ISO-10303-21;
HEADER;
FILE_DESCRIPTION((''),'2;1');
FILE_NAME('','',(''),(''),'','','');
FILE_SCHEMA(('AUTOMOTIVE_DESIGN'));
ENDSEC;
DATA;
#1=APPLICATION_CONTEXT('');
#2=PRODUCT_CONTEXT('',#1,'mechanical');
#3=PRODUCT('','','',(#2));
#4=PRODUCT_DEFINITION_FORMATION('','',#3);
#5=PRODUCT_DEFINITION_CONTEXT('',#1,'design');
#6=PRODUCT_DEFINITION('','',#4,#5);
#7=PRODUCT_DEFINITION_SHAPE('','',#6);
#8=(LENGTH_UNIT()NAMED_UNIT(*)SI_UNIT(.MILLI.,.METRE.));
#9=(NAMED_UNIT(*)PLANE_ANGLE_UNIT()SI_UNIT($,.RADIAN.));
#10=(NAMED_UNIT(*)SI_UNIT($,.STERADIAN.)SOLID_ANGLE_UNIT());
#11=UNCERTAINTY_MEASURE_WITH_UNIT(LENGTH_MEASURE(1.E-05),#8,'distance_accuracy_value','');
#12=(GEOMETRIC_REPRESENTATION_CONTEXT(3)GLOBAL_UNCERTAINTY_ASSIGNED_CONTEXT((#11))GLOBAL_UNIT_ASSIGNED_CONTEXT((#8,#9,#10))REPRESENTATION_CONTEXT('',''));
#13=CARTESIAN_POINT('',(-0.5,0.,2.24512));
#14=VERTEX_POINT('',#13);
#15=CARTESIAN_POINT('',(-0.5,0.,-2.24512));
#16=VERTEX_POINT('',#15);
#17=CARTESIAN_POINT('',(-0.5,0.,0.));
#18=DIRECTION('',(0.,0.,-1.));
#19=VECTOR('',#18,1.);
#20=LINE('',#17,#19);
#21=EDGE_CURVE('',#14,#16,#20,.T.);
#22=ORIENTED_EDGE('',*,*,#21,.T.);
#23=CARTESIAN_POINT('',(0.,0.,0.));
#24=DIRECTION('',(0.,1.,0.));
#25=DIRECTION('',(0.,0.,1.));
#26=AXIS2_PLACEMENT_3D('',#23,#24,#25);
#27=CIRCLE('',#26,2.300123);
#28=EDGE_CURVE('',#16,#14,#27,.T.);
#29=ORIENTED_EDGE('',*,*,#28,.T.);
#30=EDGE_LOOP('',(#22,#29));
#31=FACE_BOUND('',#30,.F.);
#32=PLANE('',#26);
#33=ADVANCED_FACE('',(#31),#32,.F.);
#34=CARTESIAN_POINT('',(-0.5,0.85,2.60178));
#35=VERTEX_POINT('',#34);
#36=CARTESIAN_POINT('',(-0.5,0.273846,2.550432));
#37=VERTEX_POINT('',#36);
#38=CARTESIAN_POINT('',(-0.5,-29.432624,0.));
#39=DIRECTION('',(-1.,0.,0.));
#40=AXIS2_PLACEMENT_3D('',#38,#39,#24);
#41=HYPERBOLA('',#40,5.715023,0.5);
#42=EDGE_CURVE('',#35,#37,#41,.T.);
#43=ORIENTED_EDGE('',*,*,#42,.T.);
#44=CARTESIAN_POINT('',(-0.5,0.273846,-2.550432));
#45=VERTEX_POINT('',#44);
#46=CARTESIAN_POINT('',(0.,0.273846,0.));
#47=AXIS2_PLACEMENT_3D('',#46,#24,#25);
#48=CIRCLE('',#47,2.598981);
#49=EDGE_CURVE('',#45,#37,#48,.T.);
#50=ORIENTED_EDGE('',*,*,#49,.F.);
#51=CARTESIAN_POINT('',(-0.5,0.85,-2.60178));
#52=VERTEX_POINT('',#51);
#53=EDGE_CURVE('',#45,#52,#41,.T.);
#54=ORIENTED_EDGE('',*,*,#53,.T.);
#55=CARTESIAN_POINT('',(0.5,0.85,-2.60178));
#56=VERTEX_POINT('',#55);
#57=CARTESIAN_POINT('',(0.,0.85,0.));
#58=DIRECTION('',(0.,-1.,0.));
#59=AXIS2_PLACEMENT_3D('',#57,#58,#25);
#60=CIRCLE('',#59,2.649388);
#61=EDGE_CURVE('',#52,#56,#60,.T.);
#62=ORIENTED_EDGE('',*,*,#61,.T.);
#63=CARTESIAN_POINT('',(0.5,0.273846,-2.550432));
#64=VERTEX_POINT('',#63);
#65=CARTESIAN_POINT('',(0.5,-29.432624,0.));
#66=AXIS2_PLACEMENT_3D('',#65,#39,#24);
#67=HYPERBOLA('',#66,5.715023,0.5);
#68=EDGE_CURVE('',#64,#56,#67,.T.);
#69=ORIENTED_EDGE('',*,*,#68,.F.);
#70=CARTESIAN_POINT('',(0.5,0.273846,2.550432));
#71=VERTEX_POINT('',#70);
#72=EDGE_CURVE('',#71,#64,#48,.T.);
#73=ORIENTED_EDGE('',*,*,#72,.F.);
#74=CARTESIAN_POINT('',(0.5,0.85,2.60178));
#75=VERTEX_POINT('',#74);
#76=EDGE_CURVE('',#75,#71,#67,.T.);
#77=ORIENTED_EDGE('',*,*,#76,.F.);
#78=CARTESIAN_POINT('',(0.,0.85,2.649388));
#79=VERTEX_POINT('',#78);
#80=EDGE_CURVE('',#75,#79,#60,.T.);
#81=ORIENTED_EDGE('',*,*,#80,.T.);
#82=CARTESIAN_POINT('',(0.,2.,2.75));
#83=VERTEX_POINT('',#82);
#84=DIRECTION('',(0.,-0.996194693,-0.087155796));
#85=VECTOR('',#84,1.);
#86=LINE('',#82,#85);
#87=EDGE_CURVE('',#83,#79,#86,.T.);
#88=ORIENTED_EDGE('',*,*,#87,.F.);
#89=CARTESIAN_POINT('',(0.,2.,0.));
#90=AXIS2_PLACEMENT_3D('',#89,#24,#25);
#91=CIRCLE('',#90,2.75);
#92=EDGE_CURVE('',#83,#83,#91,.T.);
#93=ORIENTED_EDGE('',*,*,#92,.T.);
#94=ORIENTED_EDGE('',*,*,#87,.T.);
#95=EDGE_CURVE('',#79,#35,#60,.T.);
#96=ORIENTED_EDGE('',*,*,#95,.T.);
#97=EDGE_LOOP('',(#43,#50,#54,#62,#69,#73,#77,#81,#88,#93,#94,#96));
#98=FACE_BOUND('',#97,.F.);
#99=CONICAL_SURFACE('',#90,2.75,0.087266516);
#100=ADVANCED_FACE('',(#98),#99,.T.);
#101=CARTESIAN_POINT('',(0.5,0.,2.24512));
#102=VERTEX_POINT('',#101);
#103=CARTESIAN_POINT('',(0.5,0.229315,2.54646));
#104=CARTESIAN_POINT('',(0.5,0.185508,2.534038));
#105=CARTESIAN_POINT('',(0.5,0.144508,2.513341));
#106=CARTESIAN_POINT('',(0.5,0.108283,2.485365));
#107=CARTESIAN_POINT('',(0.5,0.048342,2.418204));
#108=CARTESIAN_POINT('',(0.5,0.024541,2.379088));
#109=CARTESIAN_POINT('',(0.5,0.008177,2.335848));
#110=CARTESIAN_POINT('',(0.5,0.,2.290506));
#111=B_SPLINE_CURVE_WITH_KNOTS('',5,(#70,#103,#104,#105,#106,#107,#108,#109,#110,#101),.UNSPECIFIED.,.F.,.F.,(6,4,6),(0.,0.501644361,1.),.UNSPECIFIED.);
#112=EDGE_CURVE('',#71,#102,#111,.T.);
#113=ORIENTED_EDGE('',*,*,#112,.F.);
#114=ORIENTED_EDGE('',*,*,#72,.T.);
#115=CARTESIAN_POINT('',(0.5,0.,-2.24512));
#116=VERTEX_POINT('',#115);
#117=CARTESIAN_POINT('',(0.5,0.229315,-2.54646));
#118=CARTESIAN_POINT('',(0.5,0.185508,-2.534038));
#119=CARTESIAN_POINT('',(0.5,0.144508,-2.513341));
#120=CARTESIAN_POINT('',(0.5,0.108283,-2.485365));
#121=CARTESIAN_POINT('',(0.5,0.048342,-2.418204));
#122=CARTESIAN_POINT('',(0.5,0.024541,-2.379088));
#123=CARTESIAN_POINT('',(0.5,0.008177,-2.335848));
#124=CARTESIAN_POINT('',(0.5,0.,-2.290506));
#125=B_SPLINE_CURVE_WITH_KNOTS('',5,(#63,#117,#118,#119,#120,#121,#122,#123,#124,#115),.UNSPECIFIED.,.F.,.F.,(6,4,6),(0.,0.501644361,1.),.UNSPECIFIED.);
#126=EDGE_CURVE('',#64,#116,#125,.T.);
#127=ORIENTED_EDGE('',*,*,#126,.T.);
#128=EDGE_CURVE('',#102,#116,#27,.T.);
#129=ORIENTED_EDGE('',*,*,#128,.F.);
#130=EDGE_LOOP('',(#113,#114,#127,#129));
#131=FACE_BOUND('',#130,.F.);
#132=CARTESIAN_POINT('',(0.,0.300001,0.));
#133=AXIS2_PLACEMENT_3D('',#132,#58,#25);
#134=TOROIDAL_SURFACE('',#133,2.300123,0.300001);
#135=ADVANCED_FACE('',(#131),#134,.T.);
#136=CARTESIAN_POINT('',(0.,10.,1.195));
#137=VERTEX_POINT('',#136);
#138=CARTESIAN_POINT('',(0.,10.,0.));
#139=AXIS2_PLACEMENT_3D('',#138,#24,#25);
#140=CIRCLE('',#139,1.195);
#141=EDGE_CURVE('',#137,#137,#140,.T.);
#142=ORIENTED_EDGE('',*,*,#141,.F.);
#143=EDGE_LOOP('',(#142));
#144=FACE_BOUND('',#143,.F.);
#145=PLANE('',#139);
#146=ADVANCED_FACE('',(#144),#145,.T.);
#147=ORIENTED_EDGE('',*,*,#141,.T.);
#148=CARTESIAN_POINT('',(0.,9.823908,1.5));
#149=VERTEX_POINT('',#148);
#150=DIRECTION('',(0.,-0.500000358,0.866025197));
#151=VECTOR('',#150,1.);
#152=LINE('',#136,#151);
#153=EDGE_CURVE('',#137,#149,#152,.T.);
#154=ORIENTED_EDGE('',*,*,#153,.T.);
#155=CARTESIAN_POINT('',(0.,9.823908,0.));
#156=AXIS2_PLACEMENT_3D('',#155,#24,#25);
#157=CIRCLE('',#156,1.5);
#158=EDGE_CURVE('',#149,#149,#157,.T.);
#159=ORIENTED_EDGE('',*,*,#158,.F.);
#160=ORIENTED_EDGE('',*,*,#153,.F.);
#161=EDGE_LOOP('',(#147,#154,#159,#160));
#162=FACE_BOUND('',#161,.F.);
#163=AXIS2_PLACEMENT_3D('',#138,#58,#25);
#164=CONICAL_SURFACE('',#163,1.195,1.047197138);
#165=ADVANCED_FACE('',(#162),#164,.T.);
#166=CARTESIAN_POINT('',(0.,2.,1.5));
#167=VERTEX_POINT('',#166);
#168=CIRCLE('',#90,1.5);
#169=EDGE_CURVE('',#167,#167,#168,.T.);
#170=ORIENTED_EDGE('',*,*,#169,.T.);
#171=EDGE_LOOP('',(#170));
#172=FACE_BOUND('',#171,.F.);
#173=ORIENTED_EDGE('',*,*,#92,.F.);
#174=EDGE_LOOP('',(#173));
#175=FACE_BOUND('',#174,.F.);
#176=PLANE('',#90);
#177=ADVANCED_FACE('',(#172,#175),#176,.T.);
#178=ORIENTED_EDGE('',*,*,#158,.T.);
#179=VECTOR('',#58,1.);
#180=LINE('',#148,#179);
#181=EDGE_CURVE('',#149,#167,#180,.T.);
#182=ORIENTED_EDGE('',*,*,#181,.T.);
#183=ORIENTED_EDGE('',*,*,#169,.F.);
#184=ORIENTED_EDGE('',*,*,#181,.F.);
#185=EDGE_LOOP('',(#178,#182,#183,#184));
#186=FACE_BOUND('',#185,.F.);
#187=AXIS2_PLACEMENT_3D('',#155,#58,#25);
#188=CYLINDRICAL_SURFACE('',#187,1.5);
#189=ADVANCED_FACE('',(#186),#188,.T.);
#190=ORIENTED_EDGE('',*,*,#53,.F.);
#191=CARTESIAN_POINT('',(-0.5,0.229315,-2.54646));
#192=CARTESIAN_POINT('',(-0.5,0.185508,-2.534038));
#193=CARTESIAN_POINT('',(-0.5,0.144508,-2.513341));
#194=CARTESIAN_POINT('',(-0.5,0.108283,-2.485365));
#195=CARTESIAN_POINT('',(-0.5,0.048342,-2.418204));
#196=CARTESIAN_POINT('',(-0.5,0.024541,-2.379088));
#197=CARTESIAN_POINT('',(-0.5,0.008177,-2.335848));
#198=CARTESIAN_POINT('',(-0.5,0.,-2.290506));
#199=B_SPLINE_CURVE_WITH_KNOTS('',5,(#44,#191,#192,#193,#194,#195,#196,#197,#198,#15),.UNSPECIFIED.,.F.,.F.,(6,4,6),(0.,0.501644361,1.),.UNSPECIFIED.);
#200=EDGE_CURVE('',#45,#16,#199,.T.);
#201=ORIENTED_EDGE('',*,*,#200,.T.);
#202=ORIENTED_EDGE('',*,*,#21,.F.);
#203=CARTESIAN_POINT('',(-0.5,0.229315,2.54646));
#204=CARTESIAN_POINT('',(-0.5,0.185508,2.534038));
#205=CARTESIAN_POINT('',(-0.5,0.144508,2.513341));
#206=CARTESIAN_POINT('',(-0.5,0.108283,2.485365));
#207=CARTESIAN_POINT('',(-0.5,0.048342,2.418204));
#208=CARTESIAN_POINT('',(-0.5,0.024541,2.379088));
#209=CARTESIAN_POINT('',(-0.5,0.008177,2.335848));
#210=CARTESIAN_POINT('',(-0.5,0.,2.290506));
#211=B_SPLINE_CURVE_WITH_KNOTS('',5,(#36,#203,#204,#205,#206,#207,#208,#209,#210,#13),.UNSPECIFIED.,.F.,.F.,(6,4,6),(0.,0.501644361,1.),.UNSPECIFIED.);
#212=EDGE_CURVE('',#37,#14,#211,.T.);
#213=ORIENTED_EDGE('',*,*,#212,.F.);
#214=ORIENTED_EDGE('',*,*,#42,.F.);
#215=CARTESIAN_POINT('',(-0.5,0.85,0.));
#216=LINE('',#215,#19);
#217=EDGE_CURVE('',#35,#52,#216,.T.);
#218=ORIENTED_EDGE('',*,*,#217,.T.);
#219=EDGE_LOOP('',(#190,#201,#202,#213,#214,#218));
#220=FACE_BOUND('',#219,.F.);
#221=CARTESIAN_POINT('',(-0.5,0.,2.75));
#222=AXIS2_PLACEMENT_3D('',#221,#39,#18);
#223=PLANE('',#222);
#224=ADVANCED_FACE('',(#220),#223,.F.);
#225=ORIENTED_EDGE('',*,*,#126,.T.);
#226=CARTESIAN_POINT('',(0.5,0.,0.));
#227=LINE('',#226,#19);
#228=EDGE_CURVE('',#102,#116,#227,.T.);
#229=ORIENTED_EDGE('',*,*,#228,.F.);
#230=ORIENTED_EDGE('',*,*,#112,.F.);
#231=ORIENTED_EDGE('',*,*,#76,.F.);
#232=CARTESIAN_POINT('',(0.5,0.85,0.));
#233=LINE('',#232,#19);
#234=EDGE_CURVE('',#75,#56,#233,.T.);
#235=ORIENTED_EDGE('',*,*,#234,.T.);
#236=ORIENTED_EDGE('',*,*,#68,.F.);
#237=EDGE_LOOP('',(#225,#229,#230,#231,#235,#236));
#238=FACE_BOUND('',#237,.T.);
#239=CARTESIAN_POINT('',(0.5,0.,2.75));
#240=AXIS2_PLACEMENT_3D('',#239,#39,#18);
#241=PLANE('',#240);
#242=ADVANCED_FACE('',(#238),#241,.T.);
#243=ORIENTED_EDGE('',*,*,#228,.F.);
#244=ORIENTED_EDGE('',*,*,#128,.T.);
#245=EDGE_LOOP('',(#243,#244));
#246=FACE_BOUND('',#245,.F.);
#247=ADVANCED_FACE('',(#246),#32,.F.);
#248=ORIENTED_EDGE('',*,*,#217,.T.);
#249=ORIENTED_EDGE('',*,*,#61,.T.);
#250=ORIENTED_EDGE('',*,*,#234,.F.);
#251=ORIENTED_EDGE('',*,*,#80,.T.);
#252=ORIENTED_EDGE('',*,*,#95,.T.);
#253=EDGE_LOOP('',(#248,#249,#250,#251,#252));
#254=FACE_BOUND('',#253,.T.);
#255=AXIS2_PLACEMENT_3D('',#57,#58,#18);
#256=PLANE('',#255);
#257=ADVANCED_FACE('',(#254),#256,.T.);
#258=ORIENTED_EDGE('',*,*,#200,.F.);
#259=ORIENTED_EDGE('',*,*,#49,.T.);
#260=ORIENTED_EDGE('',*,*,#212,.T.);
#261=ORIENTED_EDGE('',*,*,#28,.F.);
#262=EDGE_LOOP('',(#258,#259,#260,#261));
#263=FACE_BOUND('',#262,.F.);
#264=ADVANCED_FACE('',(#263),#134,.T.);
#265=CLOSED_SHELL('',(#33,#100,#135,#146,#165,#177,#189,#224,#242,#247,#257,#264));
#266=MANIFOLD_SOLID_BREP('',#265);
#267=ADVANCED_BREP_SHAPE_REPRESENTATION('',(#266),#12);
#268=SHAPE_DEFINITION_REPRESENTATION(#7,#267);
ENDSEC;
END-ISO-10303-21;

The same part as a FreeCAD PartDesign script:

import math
import FreeCAD as App
import Part
import Sketcher
from FreeCAD import Vector
Q = App.Units.Quantity


def add_polygon(sketch, points):
    """Adds a closed chain of lines whose ends are joined by coincident constraints."""
    first, n = sketch.GeometryCount, len(points)
    for a, b in zip(points, points[1:] + points[:1]):
        sketch.addGeometry(Part.LineSegment(App.Vector(*a, 0), App.Vector(*b, 0)), False)
    for i in range(n):
        sketch.addConstraint(Sketcher.Constraint("Coincident", first + i, 2, first + (i + 1) % n, 1))

doc = App.newDocument("Part")
params = doc.addObject("Spreadsheet::Sheet", "Params")
for row, (alias, value) in enumerate([
    ("sketch1_radius", "0.300001 mm"),
    ("sketch1_width", "10 mm"),
    ("sketch1_height", "1.25 mm"),
    ("revolution_angle", "360 deg"),
    ("sketch2_width", "1 mm"),
    ("sketch2_height", "5.5 mm"),
    ("pocket1_length", "0.85 mm"),
], start=1):
    params.set(f"A{row}", alias)
    params.set(f"B{row}", "=" + value)
    params.setAlias(f"B{row}", alias)

body = doc.addObject("PartDesign::Body", "Body")

sketch1 = doc.addObject("Sketcher::SketchObject", "Sketch")
body.addObject(sketch1)
sketch1.AttachmentSupport = (doc.YZ_Plane, [""])
sketch1.MapMode = "FlatFace"
sketch1.addGeometry([
    Part.LineSegment(Vector(0, 2.3, 0), Vector(0, 0, 0)),
    Part.LineSegment(Vector(0, 0, 0), Vector(10, 0, 0)),
    Part.LineSegment(Vector(10, 0, 0), Vector(10, 1.2, 0)),
    Part.LineSegment(Vector(10, 1.2, 0), Vector(9.82, 1.5, 0)),
    Part.LineSegment(Vector(9.82, 1.5, 0), Vector(2, 1.5, 0)),
    Part.LineSegment(Vector(2, 1.5, 0), Vector(2, 2.75, 0)),
    Part.LineSegment(Vector(2, 2.75, 0), Vector(0.27, 2.6, 0)),
    Part.ArcOfCircle(Part.Circle(Vector(0.3, 2.3, 0), Vector(0, 0, 1), 0.3), math.radians(95), math.radians(180)),
], False)
sketch1.addConstraint([
    Sketcher.Constraint("Coincident", 0, 2, 1, 1),
    Sketcher.Constraint("Coincident", 1, 2, 2, 1),
    Sketcher.Constraint("Coincident", 2, 2, 3, 1),
    Sketcher.Constraint("Coincident", 3, 2, 4, 1),
    Sketcher.Constraint("Coincident", 4, 2, 5, 1),
    Sketcher.Constraint("Coincident", 5, 2, 6, 1),
    Sketcher.Constraint("Coincident", 6, 2, 7, 1),
    Sketcher.Constraint("Tangent", 7, 2, 0, 1),
    Sketcher.Constraint("Vertical", 0),
    Sketcher.Constraint("Horizontal", 1),
    Sketcher.Constraint("Vertical", 2),
    Sketcher.Constraint("Horizontal", 4),
    Sketcher.Constraint("Vertical", 5),
    Sketcher.Constraint("Coincident", 0, 2, -1, 1),
    Sketcher.Constraint("Radius", 7, 0.300001),
    Sketcher.Constraint("DistanceX", 1, 1, 1, 2, 10.0),
    Sketcher.Constraint("Angle", 6, Q("-174.999997 deg")),
    Sketcher.Constraint("DistanceX", -1, 1, 4, 2, 2.0),
    Sketcher.Constraint("DistanceY", 5, 1, 5, 2, 1.25),
    Sketcher.Constraint("DistanceY", -1, 1, 3, 2, 1.5),
    Sketcher.Constraint("DistanceY", 2, 1, 2, 2, 1.195),
    Sketcher.Constraint("DistanceX", 4, 2, 4, 1, 7.823908),
    Sketcher.Constraint("DistanceY", -1, 1, 6, 2, 2.598981),
])
sketch1.setExpression("Constraints[14]", "Params.sketch1_radius")
sketch1.setExpression("Constraints[15]", "Params.sketch1_width")
sketch1.setExpression("Constraints[18]", "Params.sketch1_height")
revolution = doc.addObject("PartDesign::Revolution", "Revolution")
body.addObject(revolution)
revolution.Profile = sketch1
revolution.ReferenceAxis = (sketch1, ["H_Axis"])
revolution.setExpression("Angle", "Params.revolution_angle")

sketch2 = doc.addObject("Sketcher::SketchObject", "Sketch001")
body.addObject(sketch2)
sketch2.AttachmentSupport = (doc.XZ_Plane, [""])
sketch2.MapMode = "FlatFace"
add_polygon(sketch2, [(0.5, 2.8), (-0.5, 2.8), (-0.5, -2.8), (0.5, -2.8)])
sketch2.addConstraint([
    Sketcher.Constraint("Horizontal", 0),
    Sketcher.Constraint("Vertical", 1),
    Sketcher.Constraint("Horizontal", 2),
    Sketcher.Constraint("Vertical", 3),
    Sketcher.Constraint("Symmetric", 0, 2, 2, 2, -1, 1),
    Sketcher.Constraint("DistanceX", 0, 2, 0, 1, 1.0),
    Sketcher.Constraint("DistanceY", 1, 2, 1, 1, 5.5),
])
sketch2.setExpression("Constraints[9]", "Params.sketch2_width")
sketch2.setExpression("Constraints[10]", "Params.sketch2_height")
pocket1 = doc.addObject("PartDesign::Pocket", "Pocket")
body.addObject(pocket1)
pocket1.Profile = sketch2
pocket1.setExpression("Length", "Params.pocket1_length")

doc.recompute()
